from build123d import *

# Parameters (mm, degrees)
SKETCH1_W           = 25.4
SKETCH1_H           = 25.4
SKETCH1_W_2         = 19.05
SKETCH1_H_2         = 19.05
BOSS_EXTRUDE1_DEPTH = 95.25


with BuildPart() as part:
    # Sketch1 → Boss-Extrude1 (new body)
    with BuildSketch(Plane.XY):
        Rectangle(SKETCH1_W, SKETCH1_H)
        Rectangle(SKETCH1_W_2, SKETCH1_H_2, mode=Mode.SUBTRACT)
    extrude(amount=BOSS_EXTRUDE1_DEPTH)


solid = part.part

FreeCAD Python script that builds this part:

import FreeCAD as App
import Part
import Sketcher
Q = App.Units.Quantity


def add_polygon(sketch, points):
    """Adds a closed chain of lines whose ends are joined by coincident constraints."""
    first, n = sketch.GeometryCount, len(points)
    for a, b in zip(points, points[1:] + points[:1]):
        sketch.addGeometry(Part.LineSegment(App.Vector(*a, 0), App.Vector(*b, 0)), False)
    for i in range(n):
        sketch.addConstraint(Sketcher.Constraint("Coincident", first + i, 2, first + (i + 1) % n, 1))

doc = App.newDocument("Part")
body = doc.addObject("PartDesign::Body", "Body")

sketch1 = body.newObject("Sketcher::SketchObject", "Sketch")
sketch1.AttachmentSupport = (doc.getObject("XY_Plane"), [""])
sketch1.MapMode = "FlatFace"
add_polygon(sketch1, [(-13, 13), (-13, -13), (13, -13), (13, 13)])
add_polygon(sketch1, [(10, -10), (-10, -10), (-10, 10), (10, 10)])
sketch1.addConstraint([
    Sketcher.Constraint("Vertical", 0),
    Sketcher.Constraint("Horizontal", 1),
    Sketcher.Constraint("Vertical", 2),
    Sketcher.Constraint("Horizontal", 3),
    Sketcher.Constraint("Horizontal", 4),
    Sketcher.Constraint("Vertical", 5),
    Sketcher.Constraint("Horizontal", 6),
    Sketcher.Constraint("Vertical", 7),
    Sketcher.Constraint("Symmetric", 0, 2, 2, 2, -1, 1),
    Sketcher.Constraint("Symmetric", 4, 2, 6, 2, -1, 1),
    Sketcher.Constraint("Equal", 3, 0),
    Sketcher.Constraint("Equal", 6, 5),
    Sketcher.Constraint("DistanceX", 1, 1, 1, 2, Q("1 in")),
    Sketcher.Constraint("DistanceX", 4, 2, 4, 1, Q("0.75 in")),
])
pad1 = body.newObject("PartDesign::Pad", "Pad")
pad1.Profile = sketch1
pad1.Length = Q("3.75 in")

doc.recompute()
